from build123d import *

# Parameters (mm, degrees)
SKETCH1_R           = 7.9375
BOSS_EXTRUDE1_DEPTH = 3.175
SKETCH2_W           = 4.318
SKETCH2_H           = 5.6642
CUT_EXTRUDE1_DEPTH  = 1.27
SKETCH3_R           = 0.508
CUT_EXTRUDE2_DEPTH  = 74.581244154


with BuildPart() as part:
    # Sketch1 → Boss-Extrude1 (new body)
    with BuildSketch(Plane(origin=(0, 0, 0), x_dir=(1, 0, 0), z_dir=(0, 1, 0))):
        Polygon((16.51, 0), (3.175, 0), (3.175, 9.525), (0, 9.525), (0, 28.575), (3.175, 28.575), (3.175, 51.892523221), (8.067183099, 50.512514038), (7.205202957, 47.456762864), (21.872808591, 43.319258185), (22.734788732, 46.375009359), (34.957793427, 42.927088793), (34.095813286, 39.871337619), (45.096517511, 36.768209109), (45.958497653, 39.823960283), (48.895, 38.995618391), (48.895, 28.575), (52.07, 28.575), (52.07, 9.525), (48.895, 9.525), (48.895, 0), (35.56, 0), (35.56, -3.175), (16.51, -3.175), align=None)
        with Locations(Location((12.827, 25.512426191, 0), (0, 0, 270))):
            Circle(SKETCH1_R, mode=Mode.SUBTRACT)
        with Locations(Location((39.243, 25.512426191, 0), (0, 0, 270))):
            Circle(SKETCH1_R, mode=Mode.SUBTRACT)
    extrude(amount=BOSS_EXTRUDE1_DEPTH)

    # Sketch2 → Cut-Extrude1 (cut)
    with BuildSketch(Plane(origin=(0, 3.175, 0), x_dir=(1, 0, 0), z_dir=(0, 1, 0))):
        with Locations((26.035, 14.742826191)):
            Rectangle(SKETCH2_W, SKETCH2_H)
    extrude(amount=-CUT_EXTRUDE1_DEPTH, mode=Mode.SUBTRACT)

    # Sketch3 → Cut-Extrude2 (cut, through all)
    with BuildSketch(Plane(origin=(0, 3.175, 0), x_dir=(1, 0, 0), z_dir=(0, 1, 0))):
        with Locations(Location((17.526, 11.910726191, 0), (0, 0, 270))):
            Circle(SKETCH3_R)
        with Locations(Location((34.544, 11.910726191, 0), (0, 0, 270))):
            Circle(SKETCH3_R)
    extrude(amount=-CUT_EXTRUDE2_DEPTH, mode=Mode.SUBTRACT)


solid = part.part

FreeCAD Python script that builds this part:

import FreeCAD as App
import Part
import Sketcher

V = App.Vector
Q = App.Units.Quantity

doc = App.newDocument("Part")
body = doc.addObject("PartDesign::Body", "Body")

# Sketch on XZ plane
sketch1 = doc.addObject("Sketcher::SketchObject", "Sketch")
body.addObject(sketch1)
sketch1.AttachmentSupport = (doc.XZ_Plane, [""])
sketch1.MapMode = "FlatFace"
sketch1.addGeometry([
    Part.LineSegment(V(3.175, 0, 0), V(16.51, 0, 0)),  # 0
    Part.LineSegment(V(16.51, 0, 0), V(16.51, 3.175, 0)),  # 1
    Part.LineSegment(V(16.51, 3.175, 0), V(35.56, 3.175, 0)),  # 2
    Part.LineSegment(V(35.56, 3.175, 0), V(35.56, 0, 0)),  # 3
    Part.LineSegment(V(35.56, 0, 0), V(48.895, 0, 0)),  # 4
    Part.LineSegment(V(48.895, 0, 0), V(48.895, -9.525, 0)),  # 5
    Part.LineSegment(V(48.895, -9.525, 0), V(52.07, -9.525, 0)),  # 6
    Part.LineSegment(V(52.07, -9.525, 0), V(52.07, -28.575, 0)),  # 7
    Part.LineSegment(V(52.07, -28.575, 0), V(48.895, -28.575, 0)),  # 8
    Part.LineSegment(V(48.895, -28.575, 0), V(48.895, -38.995618, 0)),  # 9
    Part.LineSegment(V(48.895, -38.995618, 0), V(45.958498, -39.82396, 0)),  # 10
    Part.LineSegment(V(45.958498, -39.82396, 0), V(45.096518, -36.768209, 0)),  # 11
    Part.LineSegment(V(45.096518, -36.768209, 0), V(34.095813, -39.871338, 0)),  # 12
    Part.LineSegment(V(34.095813, -39.871338, 0), V(34.957793, -42.927089, 0)),  # 13
    Part.LineSegment(V(34.957793, -42.927089, 0), V(22.734789, -46.375009, 0)),  # 14
    Part.LineSegment(V(22.734789, -46.375009, 0), V(21.872809, -43.319258, 0)),  # 15
    Part.LineSegment(V(21.872809, -43.319258, 0), V(7.205203, -47.456763, 0)),  # 16
    Part.LineSegment(V(7.205203, -47.456763, 0), V(8.067183, -50.512514, 0)),  # 17
    Part.LineSegment(V(8.067183, -50.512514, 0), V(3.175, -51.892523, 0)),  # 18
    Part.LineSegment(V(3.175, -51.892523, 0), V(3.175, -28.575, 0)),  # 19
    Part.LineSegment(V(3.175, -28.575, 0), V(0, -28.575, 0)),  # 20
    Part.LineSegment(V(0, -28.575, 0), V(0, -9.525, 0)),  # 21
    Part.LineSegment(V(0, -9.525, 0), V(3.175, -9.525, 0)),  # 22
    Part.LineSegment(V(3.175, -9.525, 0), V(3.175, 0, 0)),  # 23
    Part.Circle(V(39.243, -25.512426, 0), V(0, 0, 1), 7.9375),  # 24
    Part.Circle(V(12.827, -25.512426, 0), V(0, 0, 1), 7.9375),  # 25
], False)
sketch1.addConstraint([
    Sketcher.Constraint("Coincident", 0, 2, 1, 1),
    Sketcher.Constraint("Coincident", 1, 2, 2, 1),
    Sketcher.Constraint("Coincident", 2, 2, 3, 1),
    Sketcher.Constraint("Coincident", 3, 2, 4, 1),
    Sketcher.Constraint("Coincident", 4, 2, 5, 1),
    Sketcher.Constraint("Coincident", 5, 2, 6, 1),
    Sketcher.Constraint("Coincident", 6, 2, 7, 1),
    Sketcher.Constraint("Coincident", 7, 2, 8, 1),
    Sketcher.Constraint("Coincident", 8, 2, 9, 1),
    Sketcher.Constraint("Coincident", 9, 2, 10, 1),
    Sketcher.Constraint("Coincident", 10, 2, 11, 1),
    Sketcher.Constraint("Coincident", 11, 2, 12, 1),
    Sketcher.Constraint("Coincident", 12, 2, 13, 1),
    Sketcher.Constraint("Coincident", 13, 2, 14, 1),
    Sketcher.Constraint("Coincident", 14, 2, 15, 1),
    Sketcher.Constraint("Coincident", 15, 2, 16, 1),
    Sketcher.Constraint("Coincident", 16, 2, 17, 1),
    Sketcher.Constraint("Coincident", 17, 2, 18, 1),
    Sketcher.Constraint("Coincident", 18, 2, 19, 1),
    Sketcher.Constraint("Coincident", 19, 2, 20, 1),
    Sketcher.Constraint("Coincident", 20, 2, 21, 1),
    Sketcher.Constraint("Coincident", 21, 2, 22, 1),
    Sketcher.Constraint("Coincident", 22, 2, 23, 1),
    Sketcher.Constraint("Coincident", 23, 2, 0, 1),
    Sketcher.Constraint("Horizontal", 0),
    Sketcher.Constraint("Vertical", 1),
    Sketcher.Constraint("Horizontal", 2),
    Sketcher.Constraint("Vertical", 3),
    Sketcher.Constraint("Horizontal", 4),
    Sketcher.Constraint("Vertical", 5),
    Sketcher.Constraint("Horizontal", 6),
    Sketcher.Constraint("Vertical", 7),
    Sketcher.Constraint("Horizontal", 8),
    Sketcher.Constraint("Vertical", 9),
    Sketcher.Constraint("Vertical", 19),
    Sketcher.Constraint("Horizontal", 20),
    Sketcher.Constraint("Vertical", 21),
    Sketcher.Constraint("Horizontal", 22),
    Sketcher.Constraint("Vertical", 23),
    Sketcher.Constraint("Equal", 24, 25),
    Sketcher.Constraint("PointOnObject", 0, 2, -1),
    Sketcher.Constraint("PointOnObject", 3, 2, -1),
    Sketcher.Constraint("PointOnObject", 20, 2, -2),
    Sketcher.Constraint("Perpendicular", 10, 11),
    Sketcher.Constraint("Perpendicular", 11, 12),
    Sketcher.Constraint("Perpendicular", 12, 13),
    Sketcher.Constraint("Perpendicular", 13, 14),
    Sketcher.Constraint("Perpendicular", 14, 15),
    Sketcher.Constraint("Perpendicular", 15, 16),
    Sketcher.Constraint("Perpendicular", 16, 17),
    Sketcher.Constraint("Perpendicular", 17, 18),
    Sketcher.Constraint("Horizontal", 24, 3, 25, 3),
    Sketcher.Constraint("Horizontal", 8, 2, 19, 2),
    Sketcher.Constraint("Horizontal", 6, 2, 21, 2),
    Sketcher.Constraint("Vertical", 5, 2, 8, 2),
    Sketcher.Constraint("Vertical", 19, 2, 22, 2),
    Sketcher.Constraint("Equal", 0, 4),
    Sketcher.Constraint("Equal", 8, 20),
    Sketcher.Constraint("Equal", 22, 1),
    Sketcher.Constraint("Equal", 2, 7),
    Sketcher.Constraint("Equal", 11, 13),
    Sketcher.Constraint("Equal", 13, 15),
    Sketcher.Constraint("Equal", 15, 17),
    Sketcher.Constraint("Diameter", 24, Q("0.625 in")),
    Sketcher.Constraint("Distance", 14, Q("0.5 in")),
    Sketcher.Constraint("Distance", 16, Q("0.6 in")),
    Sketcher.Constraint("DistanceX", 2, 1, 2, 2, Q("0.75 in")),
    Sketcher.Constraint("DistanceX", -1, 1, 2, 2, Q("1.4 in")),
    Sketcher.Constraint("DistanceY", 5, 2, 2, 2, Q("0.5 in")),
    Sketcher.Constraint("Distance", 12, Q("0.45 in")),
    Sketcher.Constraint("DistanceX", 0, 1, 0, 2, Q("0.525 in")),
    Sketcher.Constraint("DistanceX", 25, 3, 24, 3, Q("1.04 in")),
    Sketcher.Constraint("DistanceX", 24, 3, 4, 2, Q("0.38 in")),
    Sketcher.Constraint("Distance", 11, Q("0.125 in")),
    Sketcher.Constraint("DistanceY", 9, 2, 9, 1, Q("10.420618 mm")),
    Sketcher.Constraint("DistanceY", 14, 2, 11, 2, Q("9.6068 mm")),
    Sketcher.Constraint("DistanceY", 10, 2, -1, 1, Q("39.82396 mm")),
    Sketcher.Constraint("DistanceY", 12, 2, 24, 3, Q("14.358911 mm")),
])
pad1 = doc.addObject("PartDesign::Pad", "Pad")
body.addObject(pad1)
pad1.Profile = sketch1
pad1.Length = Q("0.125 in")
pad1.Reversed = True

# Sketch on XZ plane
sketch2 = doc.addObject("Sketcher::SketchObject", "Sketch001")
body.addObject(sketch2)
sketch2.AttachmentSupport = (doc.XZ_Plane, [""])
sketch2.MapMode = "FlatFace"
sketch2.AttachmentOffset = App.Placement(V(0, 0, -0.125 * 25.4), App.Rotation())
sketch2.addGeometry([
    Part.LineSegment(V(23.876, -17.574926, 0), V(23.876, -11.910726, 0)),
    Part.LineSegment(V(23.876, -11.910726, 0), V(28.194, -11.910726, 0)),
    Part.LineSegment(V(28.194, -11.910726, 0), V(28.194, -17.574926, 0)),
    Part.LineSegment(V(28.194, -17.574926, 0), V(23.876, -17.574926, 0)),
], False)
sketch2.addConstraint([
    Sketcher.Constraint("Coincident", 0, 2, 1, 1),
    Sketcher.Constraint("Coincident", 1, 2, 2, 1),
    Sketcher.Constraint("Coincident", 2, 2, 3, 1),
    Sketcher.Constraint("Coincident", 3, 2, 0, 1),
    Sketcher.Constraint("Vertical", 0),
    Sketcher.Constraint("Horizontal", 1),
    Sketcher.Constraint("Vertical", 2),
    Sketcher.Constraint("Horizontal", 3),
    Sketcher.Constraint("DistanceX", 1, 1, 1, 2, Q("0.17 in")),
    Sketcher.Constraint("DistanceY", 0, 1, 0, 2, Q("0.223 in")),
    Sketcher.Constraint("DistanceX", -1, 1, 0, 2, Q("0.94 in")),
    Sketcher.Constraint("DistanceY", 0, 2, -1, 1, Q("11.910726 mm")),
])
pocket1 = doc.addObject("PartDesign::Pocket", "Pocket")
body.addObject(pocket1)
pocket1.Profile = sketch2
pocket1.Length = Q("0.05 in")
pocket1.Reversed = True

# Sketch on XZ plane
sketch3 = doc.addObject("Sketcher::SketchObject", "Sketch002")
body.addObject(sketch3)
sketch3.AttachmentSupport = (doc.XZ_Plane, [""])
sketch3.MapMode = "FlatFace"
sketch3.AttachmentOffset = App.Placement(V(0, 0, -0.125 * 25.4), App.Rotation())
sketch3.addGeometry([
    Part.Circle(V(17.526, -11.910726, 0), V(0, 0, 1), 0.508),
    Part.Circle(V(34.544, -11.910726, 0), V(0, 0, 1), 0.508),
], False)
sketch3.addConstraint([
    Sketcher.Constraint("Equal", 0, 1),
    Sketcher.Constraint("Horizontal", 0, 3, 1, 3),
    Sketcher.Constraint("Diameter", 0, Q("0.04 in")),
    Sketcher.Constraint("DistanceX", -1, 1, 0, 3, Q("0.69 in")),
    Sketcher.Constraint("DistanceX", -1, 1, 1, 3, Q("1.36 in")),
    Sketcher.Constraint("DistanceY", 0, 3, -1, 1, Q("11.910726 mm")),
])
pocket2 = doc.addObject("PartDesign::Pocket", "Pocket001")
body.addObject(pocket2)
pocket2.Profile = sketch3
pocket2.Type = "ThroughAll"
pocket2.Reversed = True

doc.recompute()
